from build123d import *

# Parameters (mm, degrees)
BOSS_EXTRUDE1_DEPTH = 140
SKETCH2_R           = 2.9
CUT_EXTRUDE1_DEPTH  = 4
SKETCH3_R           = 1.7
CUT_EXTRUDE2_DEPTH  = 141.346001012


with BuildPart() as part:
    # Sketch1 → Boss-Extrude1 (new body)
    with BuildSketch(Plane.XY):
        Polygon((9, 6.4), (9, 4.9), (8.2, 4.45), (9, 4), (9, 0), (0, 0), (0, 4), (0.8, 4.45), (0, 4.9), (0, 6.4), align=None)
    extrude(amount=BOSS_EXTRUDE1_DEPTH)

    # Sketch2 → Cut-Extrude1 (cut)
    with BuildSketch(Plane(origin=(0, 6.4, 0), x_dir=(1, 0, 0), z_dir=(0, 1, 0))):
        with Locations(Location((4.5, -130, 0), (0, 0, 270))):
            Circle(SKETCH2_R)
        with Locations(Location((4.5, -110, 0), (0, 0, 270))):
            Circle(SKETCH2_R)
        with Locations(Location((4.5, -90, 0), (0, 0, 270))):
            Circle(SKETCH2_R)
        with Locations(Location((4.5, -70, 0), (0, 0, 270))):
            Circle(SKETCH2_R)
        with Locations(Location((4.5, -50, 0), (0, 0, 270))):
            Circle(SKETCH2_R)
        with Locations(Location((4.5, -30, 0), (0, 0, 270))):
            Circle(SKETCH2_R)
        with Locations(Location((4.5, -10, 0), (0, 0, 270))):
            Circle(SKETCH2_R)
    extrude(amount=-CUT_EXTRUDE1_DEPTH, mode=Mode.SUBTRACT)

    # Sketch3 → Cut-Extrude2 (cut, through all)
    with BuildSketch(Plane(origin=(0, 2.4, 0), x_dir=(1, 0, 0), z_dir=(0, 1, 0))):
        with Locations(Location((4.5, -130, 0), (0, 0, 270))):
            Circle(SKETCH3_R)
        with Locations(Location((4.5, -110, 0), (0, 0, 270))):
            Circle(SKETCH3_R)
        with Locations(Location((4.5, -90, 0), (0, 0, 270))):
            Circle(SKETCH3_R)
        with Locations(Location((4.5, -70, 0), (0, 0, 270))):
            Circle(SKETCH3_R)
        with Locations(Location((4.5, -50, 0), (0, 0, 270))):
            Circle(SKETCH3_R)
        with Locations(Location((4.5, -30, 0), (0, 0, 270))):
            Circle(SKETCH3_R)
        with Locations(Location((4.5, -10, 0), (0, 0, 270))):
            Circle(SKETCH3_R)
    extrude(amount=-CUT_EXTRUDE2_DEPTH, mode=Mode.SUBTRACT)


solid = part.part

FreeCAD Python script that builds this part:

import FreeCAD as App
import Part
import Sketcher
from FreeCAD import Vector
Q = App.Units.Quantity


def add_polygon(sketch, points):
    """Adds a closed chain of lines whose ends are joined by coincident constraints."""
    first, n = sketch.GeometryCount, len(points)
    for a, b in zip(points, points[1:] + points[:1]):
        sketch.addGeometry(Part.LineSegment(App.Vector(*a, 0), App.Vector(*b, 0)), False)
    for i in range(n):
        sketch.addConstraint(Sketcher.Constraint("Coincident", first + i, 2, first + (i + 1) % n, 1))

doc = App.newDocument("Part")
params = doc.addObject("Spreadsheet::Sheet", "Params")
for row, (alias, value) in enumerate([
    ("sketch1_width", "9 mm"),
    ("sketch1_height", "4 mm"),
    ("sketch1_height2", "1.5 mm"),
    ("pad1_length", "140 mm"),
    ("sketch2_diameter", "5.8 mm"),
    ("pocket1_length", "4 mm"),
    ("sketch3_diameter", "3.4 mm"),
], start=1):
    params.set(f"A{row}", alias)
    params.set(f"B{row}", "=" + value)
    params.setAlias(f"B{row}", alias)

body = doc.addObject("PartDesign::Body", "Body")

# Sketch on XY plane
sketch1 = body.newObject("Sketcher::SketchObject", "Sketch")
sketch1.AttachmentSupport = (doc.getObject("XY_Plane"), [""])
sketch1.MapMode = "FlatFace"
add_polygon(sketch1, [(9, 4.9), (9, 6.4), (0, 6.4), (0, 4.9), (0.8, 4.5), (0, 4), (0, 0), (9, 0), (9, 4), (8.2, 4.5)])  # lines 0-9
sketch1.addConstraint(Sketcher.Constraint("Vertical", 0))
sketch1.addConstraint(Sketcher.Constraint("Horizontal", 1))
sketch1.addConstraint(Sketcher.Constraint("Vertical", 2))
sketch1.addConstraint(Sketcher.Constraint("Vertical", 5))
sketch1.addConstraint(Sketcher.Constraint("Horizontal", 6))
sketch1.addConstraint(Sketcher.Constraint("Vertical", 7))
sketch1.addConstraint(Sketcher.Constraint("Coincident", 5, 2, -1, 1))
sketch1.addConstraint(Sketcher.Constraint("PointOnObject", 1, 2, -2))
sketch1.addConstraint(Sketcher.Constraint("Parallel", 3, 8))
sketch1.addConstraint(Sketcher.Constraint("Parallel", 4, 9))
sketch1.addConstraint(Sketcher.Constraint("Horizontal", 4, 2, 7, 2))
sketch1.addConstraint(Sketcher.Constraint("Horizontal", 3, 2, 8, 2))
sketch1.addConstraint(Sketcher.Constraint("Horizontal", 2, 2, 9, 2))
sketch1.addConstraint(Sketcher.Constraint("Vertical", 0, 2, 6, 2))
sketch1.addConstraint(Sketcher.Constraint("DistanceX", 1, 2, 1, 1, Q("9 mm")))
sketch1.addConstraint(Sketcher.Constraint("DistanceY", 5, 2, 5, 1, Q("4 mm")))
sketch1.addConstraint(Sketcher.Constraint("DistanceY", 0, 1, 0, 2, Q("1.5 mm")))
sketch1.addConstraint(Sketcher.Constraint("DistanceY", -1, 1, 0, 2, Q("6.4 mm")))
sketch1.addConstraint(Sketcher.Constraint("DistanceX", -1, 1, 3, 2, Q("0.8 mm")))
sketch1.setExpression("Constraints[24]", "Params.sketch1_width")
sketch1.setExpression("Constraints[25]", "Params.sketch1_height")
sketch1.setExpression("Constraints[26]", "Params.sketch1_height2")
pad1 = body.newObject("PartDesign::Pad", "Pad")
pad1.Profile = sketch1
pad1.setExpression("Length", "Params.pad1_length")

# Sketch on XZ plane
sketch2 = body.newObject("Sketcher::SketchObject", "Sketch001")
sketch2.AttachmentSupport = (doc.getObject("XZ_Plane"), [""])
sketch2.MapMode = "FlatFace"
sketch2.AttachmentOffset = App.Placement(Vector(0, 0, -6.4), App.Rotation())
sketch2.addGeometry(Part.Circle(Vector(4.5, 130, 0), Vector(0, 0, 1), 2.9), False)
sketch2.addGeometry(Part.Circle(Vector(4.5, 110, 0), Vector(0, 0, 1), 2.9), False)
sketch2.addGeometry(Part.Circle(Vector(4.5, 90, 0), Vector(0, 0, 1), 2.9), False)
sketch2.addGeometry(Part.Circle(Vector(4.5, 70, 0), Vector(0, 0, 1), 2.9), False)
sketch2.addGeometry(Part.Circle(Vector(4.5, 50, 0), Vector(0, 0, 1), 2.9), False)
sketch2.addGeometry(Part.Circle(Vector(4.5, 30, 0), Vector(0, 0, 1), 2.9), False)
sketch2.addGeometry(Part.Circle(Vector(4.5, 10, 0), Vector(0, 0, 1), 2.9), False)
sketch2.addConstraint(Sketcher.Constraint("Equal", 0, 1))
sketch2.addConstraint(Sketcher.Constraint("Equal", 1, 2))
sketch2.addConstraint(Sketcher.Constraint("Equal", 2, 3))
sketch2.addConstraint(Sketcher.Constraint("Equal", 3, 4))
sketch2.addConstraint(Sketcher.Constraint("Equal", 4, 5))
sketch2.addConstraint(Sketcher.Constraint("Equal", 5, 6))
sketch2.addConstraint(Sketcher.Constraint("Vertical", 0, 3, 1, 3))
sketch2.addConstraint(Sketcher.Constraint("Vertical", 1, 3, 2, 3))
sketch2.addConstraint(Sketcher.Constraint("Vertical", 2, 3, 3, 3))
sketch2.addConstraint(Sketcher.Constraint("Vertical", 3, 3, 4, 3))
sketch2.addConstraint(Sketcher.Constraint("Vertical", 4, 3, 5, 3))
sketch2.addConstraint(Sketcher.Constraint("Vertical", 5, 3, 6, 3))
sketch2.addConstraint(Sketcher.Constraint("Diameter", 0, Q("5.8 mm")))
sketch2.addConstraint(Sketcher.Constraint("DistanceY", -1, 1, 0, 3, Q("130 mm")))
sketch2.addConstraint(Sketcher.Constraint("DistanceY", -1, 1, 1, 3, Q("110 mm")))
sketch2.addConstraint(Sketcher.Constraint("DistanceY", -1, 1, 2, 3, Q("90 mm")))
sketch2.addConstraint(Sketcher.Constraint("DistanceY", -1, 1, 3, 3, Q("70 mm")))
sketch2.addConstraint(Sketcher.Constraint("DistanceY", -1, 1, 4, 3, Q("50 mm")))
sketch2.addConstraint(Sketcher.Constraint("DistanceY", -1, 1, 5, 3, Q("30 mm")))
sketch2.addConstraint(Sketcher.Constraint("DistanceY", -1, 1, 6, 3, Q("10 mm")))
sketch2.addConstraint(Sketcher.Constraint("DistanceX", -1, 1, 0, 3, Q("4.5 mm")))
sketch2.setExpression("Constraints[12]", "Params.sketch2_diameter")
pocket1 = body.newObject("PartDesign::Pocket", "Pocket")
pocket1.Profile = sketch2
pocket1.setExpression("Length", "Params.pocket1_length")
pocket1.Reversed = True

# Sketch on XZ plane
sketch3 = body.newObject("Sketcher::SketchObject", "Sketch002")
sketch3.AttachmentSupport = (doc.getObject("XZ_Plane"), [""])
sketch3.MapMode = "FlatFace"
sketch3.AttachmentOffset = App.Placement(Vector(0, 0, -2.4), App.Rotation())
sketch3.addGeometry(Part.Circle(Vector(4.5, 130, 0), Vector(0, 0, 1), 1.7), False)
sketch3.addGeometry(Part.Circle(Vector(4.5, 110, 0), Vector(0, 0, 1), 1.7), False)
sketch3.addGeometry(Part.Circle(Vector(4.5, 90, 0), Vector(0, 0, 1), 1.7), False)
sketch3.addGeometry(Part.Circle(Vector(4.5, 70, 0), Vector(0, 0, 1), 1.7), False)
sketch3.addGeometry(Part.Circle(Vector(4.5, 50, 0), Vector(0, 0, 1), 1.7), False)
sketch3.addGeometry(Part.Circle(Vector(4.5, 30, 0), Vector(0, 0, 1), 1.7), False)
sketch3.addGeometry(Part.Circle(Vector(4.5, 10, 0), Vector(0, 0, 1), 1.7), False)
sketch3.addConstraint(Sketcher.Constraint("Equal", 0, 1))
sketch3.addConstraint(Sketcher.Constraint("Equal", 1, 2))
sketch3.addConstraint(Sketcher.Constraint("Equal", 2, 3))
sketch3.addConstraint(Sketcher.Constraint("Equal", 3, 4))
sketch3.addConstraint(Sketcher.Constraint("Equal", 4, 5))
sketch3.addConstraint(Sketcher.Constraint("Equal", 5, 6))
sketch3.addConstraint(Sketcher.Constraint("Vertical", 0, 3, 1, 3))
sketch3.addConstraint(Sketcher.Constraint("Vertical", 1, 3, 2, 3))
sketch3.addConstraint(Sketcher.Constraint("Vertical", 2, 3, 3, 3))
sketch3.addConstraint(Sketcher.Constraint("Vertical", 3, 3, 4, 3))
sketch3.addConstraint(Sketcher.Constraint("Vertical", 4, 3, 5, 3))
sketch3.addConstraint(Sketcher.Constraint("Vertical", 5, 3, 6, 3))
sketch3.addConstraint(Sketcher.Constraint("Diameter", 0, Q("3.4 mm")))
sketch3.addConstraint(Sketcher.Constraint("DistanceY", -1, 1, 0, 3, Q("130 mm")))
sketch3.addConstraint(Sketcher.Constraint("DistanceY", -1, 1, 1, 3, Q("110 mm")))
sketch3.addConstraint(Sketcher.Constraint("DistanceY", -1, 1, 2, 3, Q("90 mm")))
sketch3.addConstraint(Sketcher.Constraint("DistanceY", -1, 1, 3, 3, Q("70 mm")))
sketch3.addConstraint(Sketcher.Constraint("DistanceY", -1, 1, 4, 3, Q("50 mm")))
sketch3.addConstraint(Sketcher.Constraint("DistanceY", -1, 1, 5, 3, Q("30 mm")))
sketch3.addConstraint(Sketcher.Constraint("DistanceY", -1, 1, 6, 3, Q("10 mm")))
sketch3.addConstraint(Sketcher.Constraint("DistanceX", -1, 1, 0, 3, Q("4.5 mm")))
sketch3.setExpression("Constraints[12]", "Params.sketch3_diameter")
pocket2 = body.newObject("PartDesign::Pocket", "Pocket001")
pocket2.Profile = sketch3
pocket2.Type = "ThroughAll"
pocket2.Reversed = True

doc.recompute()
